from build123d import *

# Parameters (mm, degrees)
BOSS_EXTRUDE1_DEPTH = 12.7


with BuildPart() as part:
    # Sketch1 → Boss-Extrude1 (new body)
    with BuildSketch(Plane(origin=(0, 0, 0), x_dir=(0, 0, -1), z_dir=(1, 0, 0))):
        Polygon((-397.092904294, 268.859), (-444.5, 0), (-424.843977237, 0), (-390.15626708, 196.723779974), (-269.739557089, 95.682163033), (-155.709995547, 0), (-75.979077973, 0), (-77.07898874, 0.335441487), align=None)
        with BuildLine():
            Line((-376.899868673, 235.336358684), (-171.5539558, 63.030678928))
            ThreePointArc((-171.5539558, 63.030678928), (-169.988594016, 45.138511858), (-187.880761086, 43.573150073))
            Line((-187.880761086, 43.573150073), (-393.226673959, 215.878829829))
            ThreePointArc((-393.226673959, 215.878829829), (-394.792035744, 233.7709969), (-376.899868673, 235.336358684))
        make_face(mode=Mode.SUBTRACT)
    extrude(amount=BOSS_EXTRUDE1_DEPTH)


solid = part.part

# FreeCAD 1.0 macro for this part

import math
import FreeCAD as App
import Part
import Sketcher

V = App.Vector
Q = App.Units.Quantity


def add_polygon(sketch, points):
    """Adds a closed chain of lines whose ends are joined by coincident constraints."""
    first, n = sketch.GeometryCount, len(points)
    for a, b in zip(points, points[1:] + points[:1]):
        sketch.addGeometry(Part.LineSegment(App.Vector(*a, 0), App.Vector(*b, 0)), False)
    for i in range(n):
        sketch.addConstraint(Sketcher.Constraint("Coincident", first + i, 2, first + (i + 1) % n, 1))

doc = App.newDocument("Part")
params = doc.addObject("Spreadsheet::Sheet", "Params")
for row, (alias, value) in enumerate([
    ("sketch1_radius", "0.5 in"),
    ("pad1_length", "0.5 in"),
], start=1):
    params.set(f"A{row}", alias)
    params.set(f"B{row}", "=" + value)
    params.setAlias(f"B{row}", alias)

body = doc.addObject("PartDesign::Body", "Body")

# Sketch on YZ plane
sketch1 = body.newObject("Sketcher::SketchObject", "Sketch")
sketch1.AttachmentSupport = (doc.getObject("YZ_Plane"), [""])
sketch1.MapMode = "FlatFace"
add_polygon(sketch1, [(268.9, 397.1), (0, 444.5), (0, 424.8), (196.7, 390.2), (0, 155.7), (0, 76), (0.3, 77.1)])  # lines 0-6
sketch1.addGeometry(Part.ArcOfCircle(Part.Circle(V(225.6, 385.1, 0), V(0, 0, 1), 12.7), math.radians(-40), math.radians(140)), False)  # 7
sketch1.addGeometry(Part.LineSegment(V(235.3, 376.9, 0), V(63, 171.6, 0)), False)  # 8
sketch1.addGeometry(Part.ArcOfCircle(Part.Circle(V(53.3, 179.7, 0), V(0, 0, 1), 12.7), math.radians(140), math.radians(320)), False)  # 9
sketch1.addGeometry(Part.LineSegment(V(43.6, 187.9, 0), V(215.9, 393.2, 0)), False)  # 10
sketch1.addConstraint(Sketcher.Constraint("Tangent", 7, 1, 8, 1))
sketch1.addConstraint(Sketcher.Constraint("Tangent", 8, 2, 9, 2))
sketch1.addConstraint(Sketcher.Constraint("Tangent", 9, 1, 10, 1))
sketch1.addConstraint(Sketcher.Constraint("Tangent", 10, 2, 7, 2))
sketch1.addConstraint(Sketcher.Constraint("Vertical", 1))
sketch1.addConstraint(Sketcher.Constraint("Vertical", 4))
sketch1.addConstraint(Sketcher.Constraint("Equal", 7, 9))
sketch1.addConstraint(Sketcher.Constraint("PointOnObject", 0, 2, -2))
sketch1.addConstraint(Sketcher.Constraint("PointOnObject", 3, 2, -2))
sketch1.addConstraint(Sketcher.Constraint("Parallel", 0, 2))
sketch1.addConstraint(Sketcher.Constraint("Parallel", 3, 6))
sketch1.addConstraint(Sketcher.Constraint("Parallel", 6, 8))
sketch1.addConstraint(Sketcher.Constraint("Radius", 7, Q("0.5 in")))
sketch1.addConstraint(Sketcher.Constraint("Angle", 0, Q("170 deg")))
sketch1.addConstraint(Sketcher.Constraint("Angle", 3, Q("-130 deg")))
sketch1.addConstraint(Sketcher.Constraint("DistanceY", -1, 1, 0, 2, Q("17.5 in")))
sketch1.addConstraint(Sketcher.Constraint("DistanceX", -1, 1, 6, 2, Q("10.585 in")))
sketch1.addConstraint(Sketcher.Constraint("Distance", 6, 417.748498))
sketch1.addConstraint(Sketcher.Constraint("DistanceY", 4, 2, 1, 2, 348.864899))
sketch1.addConstraint(Sketcher.Constraint("DistanceY", 7, 1, 2, 2, 13.256398))
sketch1.addConstraint(Sketcher.Constraint("DistanceX", 8, 2, 2, 2, 133.693101))
sketch1.addConstraint(Sketcher.Constraint("Distance", 2, 199.758561))
sketch1.addConstraint(Sketcher.Constraint("Distance", 8, 268.060051))
sketch1.addConstraint(Sketcher.Constraint("DistanceY", 1, 2, 1, 1, 19.656023))
sketch1.setExpression("Constraints[19]", "Params.sketch1_radius")
pad1 = body.newObject("PartDesign::Pad", "Pad")
pad1.Profile = sketch1
pad1.setExpression("Length", "Params.pad1_length")

doc.recompute()
